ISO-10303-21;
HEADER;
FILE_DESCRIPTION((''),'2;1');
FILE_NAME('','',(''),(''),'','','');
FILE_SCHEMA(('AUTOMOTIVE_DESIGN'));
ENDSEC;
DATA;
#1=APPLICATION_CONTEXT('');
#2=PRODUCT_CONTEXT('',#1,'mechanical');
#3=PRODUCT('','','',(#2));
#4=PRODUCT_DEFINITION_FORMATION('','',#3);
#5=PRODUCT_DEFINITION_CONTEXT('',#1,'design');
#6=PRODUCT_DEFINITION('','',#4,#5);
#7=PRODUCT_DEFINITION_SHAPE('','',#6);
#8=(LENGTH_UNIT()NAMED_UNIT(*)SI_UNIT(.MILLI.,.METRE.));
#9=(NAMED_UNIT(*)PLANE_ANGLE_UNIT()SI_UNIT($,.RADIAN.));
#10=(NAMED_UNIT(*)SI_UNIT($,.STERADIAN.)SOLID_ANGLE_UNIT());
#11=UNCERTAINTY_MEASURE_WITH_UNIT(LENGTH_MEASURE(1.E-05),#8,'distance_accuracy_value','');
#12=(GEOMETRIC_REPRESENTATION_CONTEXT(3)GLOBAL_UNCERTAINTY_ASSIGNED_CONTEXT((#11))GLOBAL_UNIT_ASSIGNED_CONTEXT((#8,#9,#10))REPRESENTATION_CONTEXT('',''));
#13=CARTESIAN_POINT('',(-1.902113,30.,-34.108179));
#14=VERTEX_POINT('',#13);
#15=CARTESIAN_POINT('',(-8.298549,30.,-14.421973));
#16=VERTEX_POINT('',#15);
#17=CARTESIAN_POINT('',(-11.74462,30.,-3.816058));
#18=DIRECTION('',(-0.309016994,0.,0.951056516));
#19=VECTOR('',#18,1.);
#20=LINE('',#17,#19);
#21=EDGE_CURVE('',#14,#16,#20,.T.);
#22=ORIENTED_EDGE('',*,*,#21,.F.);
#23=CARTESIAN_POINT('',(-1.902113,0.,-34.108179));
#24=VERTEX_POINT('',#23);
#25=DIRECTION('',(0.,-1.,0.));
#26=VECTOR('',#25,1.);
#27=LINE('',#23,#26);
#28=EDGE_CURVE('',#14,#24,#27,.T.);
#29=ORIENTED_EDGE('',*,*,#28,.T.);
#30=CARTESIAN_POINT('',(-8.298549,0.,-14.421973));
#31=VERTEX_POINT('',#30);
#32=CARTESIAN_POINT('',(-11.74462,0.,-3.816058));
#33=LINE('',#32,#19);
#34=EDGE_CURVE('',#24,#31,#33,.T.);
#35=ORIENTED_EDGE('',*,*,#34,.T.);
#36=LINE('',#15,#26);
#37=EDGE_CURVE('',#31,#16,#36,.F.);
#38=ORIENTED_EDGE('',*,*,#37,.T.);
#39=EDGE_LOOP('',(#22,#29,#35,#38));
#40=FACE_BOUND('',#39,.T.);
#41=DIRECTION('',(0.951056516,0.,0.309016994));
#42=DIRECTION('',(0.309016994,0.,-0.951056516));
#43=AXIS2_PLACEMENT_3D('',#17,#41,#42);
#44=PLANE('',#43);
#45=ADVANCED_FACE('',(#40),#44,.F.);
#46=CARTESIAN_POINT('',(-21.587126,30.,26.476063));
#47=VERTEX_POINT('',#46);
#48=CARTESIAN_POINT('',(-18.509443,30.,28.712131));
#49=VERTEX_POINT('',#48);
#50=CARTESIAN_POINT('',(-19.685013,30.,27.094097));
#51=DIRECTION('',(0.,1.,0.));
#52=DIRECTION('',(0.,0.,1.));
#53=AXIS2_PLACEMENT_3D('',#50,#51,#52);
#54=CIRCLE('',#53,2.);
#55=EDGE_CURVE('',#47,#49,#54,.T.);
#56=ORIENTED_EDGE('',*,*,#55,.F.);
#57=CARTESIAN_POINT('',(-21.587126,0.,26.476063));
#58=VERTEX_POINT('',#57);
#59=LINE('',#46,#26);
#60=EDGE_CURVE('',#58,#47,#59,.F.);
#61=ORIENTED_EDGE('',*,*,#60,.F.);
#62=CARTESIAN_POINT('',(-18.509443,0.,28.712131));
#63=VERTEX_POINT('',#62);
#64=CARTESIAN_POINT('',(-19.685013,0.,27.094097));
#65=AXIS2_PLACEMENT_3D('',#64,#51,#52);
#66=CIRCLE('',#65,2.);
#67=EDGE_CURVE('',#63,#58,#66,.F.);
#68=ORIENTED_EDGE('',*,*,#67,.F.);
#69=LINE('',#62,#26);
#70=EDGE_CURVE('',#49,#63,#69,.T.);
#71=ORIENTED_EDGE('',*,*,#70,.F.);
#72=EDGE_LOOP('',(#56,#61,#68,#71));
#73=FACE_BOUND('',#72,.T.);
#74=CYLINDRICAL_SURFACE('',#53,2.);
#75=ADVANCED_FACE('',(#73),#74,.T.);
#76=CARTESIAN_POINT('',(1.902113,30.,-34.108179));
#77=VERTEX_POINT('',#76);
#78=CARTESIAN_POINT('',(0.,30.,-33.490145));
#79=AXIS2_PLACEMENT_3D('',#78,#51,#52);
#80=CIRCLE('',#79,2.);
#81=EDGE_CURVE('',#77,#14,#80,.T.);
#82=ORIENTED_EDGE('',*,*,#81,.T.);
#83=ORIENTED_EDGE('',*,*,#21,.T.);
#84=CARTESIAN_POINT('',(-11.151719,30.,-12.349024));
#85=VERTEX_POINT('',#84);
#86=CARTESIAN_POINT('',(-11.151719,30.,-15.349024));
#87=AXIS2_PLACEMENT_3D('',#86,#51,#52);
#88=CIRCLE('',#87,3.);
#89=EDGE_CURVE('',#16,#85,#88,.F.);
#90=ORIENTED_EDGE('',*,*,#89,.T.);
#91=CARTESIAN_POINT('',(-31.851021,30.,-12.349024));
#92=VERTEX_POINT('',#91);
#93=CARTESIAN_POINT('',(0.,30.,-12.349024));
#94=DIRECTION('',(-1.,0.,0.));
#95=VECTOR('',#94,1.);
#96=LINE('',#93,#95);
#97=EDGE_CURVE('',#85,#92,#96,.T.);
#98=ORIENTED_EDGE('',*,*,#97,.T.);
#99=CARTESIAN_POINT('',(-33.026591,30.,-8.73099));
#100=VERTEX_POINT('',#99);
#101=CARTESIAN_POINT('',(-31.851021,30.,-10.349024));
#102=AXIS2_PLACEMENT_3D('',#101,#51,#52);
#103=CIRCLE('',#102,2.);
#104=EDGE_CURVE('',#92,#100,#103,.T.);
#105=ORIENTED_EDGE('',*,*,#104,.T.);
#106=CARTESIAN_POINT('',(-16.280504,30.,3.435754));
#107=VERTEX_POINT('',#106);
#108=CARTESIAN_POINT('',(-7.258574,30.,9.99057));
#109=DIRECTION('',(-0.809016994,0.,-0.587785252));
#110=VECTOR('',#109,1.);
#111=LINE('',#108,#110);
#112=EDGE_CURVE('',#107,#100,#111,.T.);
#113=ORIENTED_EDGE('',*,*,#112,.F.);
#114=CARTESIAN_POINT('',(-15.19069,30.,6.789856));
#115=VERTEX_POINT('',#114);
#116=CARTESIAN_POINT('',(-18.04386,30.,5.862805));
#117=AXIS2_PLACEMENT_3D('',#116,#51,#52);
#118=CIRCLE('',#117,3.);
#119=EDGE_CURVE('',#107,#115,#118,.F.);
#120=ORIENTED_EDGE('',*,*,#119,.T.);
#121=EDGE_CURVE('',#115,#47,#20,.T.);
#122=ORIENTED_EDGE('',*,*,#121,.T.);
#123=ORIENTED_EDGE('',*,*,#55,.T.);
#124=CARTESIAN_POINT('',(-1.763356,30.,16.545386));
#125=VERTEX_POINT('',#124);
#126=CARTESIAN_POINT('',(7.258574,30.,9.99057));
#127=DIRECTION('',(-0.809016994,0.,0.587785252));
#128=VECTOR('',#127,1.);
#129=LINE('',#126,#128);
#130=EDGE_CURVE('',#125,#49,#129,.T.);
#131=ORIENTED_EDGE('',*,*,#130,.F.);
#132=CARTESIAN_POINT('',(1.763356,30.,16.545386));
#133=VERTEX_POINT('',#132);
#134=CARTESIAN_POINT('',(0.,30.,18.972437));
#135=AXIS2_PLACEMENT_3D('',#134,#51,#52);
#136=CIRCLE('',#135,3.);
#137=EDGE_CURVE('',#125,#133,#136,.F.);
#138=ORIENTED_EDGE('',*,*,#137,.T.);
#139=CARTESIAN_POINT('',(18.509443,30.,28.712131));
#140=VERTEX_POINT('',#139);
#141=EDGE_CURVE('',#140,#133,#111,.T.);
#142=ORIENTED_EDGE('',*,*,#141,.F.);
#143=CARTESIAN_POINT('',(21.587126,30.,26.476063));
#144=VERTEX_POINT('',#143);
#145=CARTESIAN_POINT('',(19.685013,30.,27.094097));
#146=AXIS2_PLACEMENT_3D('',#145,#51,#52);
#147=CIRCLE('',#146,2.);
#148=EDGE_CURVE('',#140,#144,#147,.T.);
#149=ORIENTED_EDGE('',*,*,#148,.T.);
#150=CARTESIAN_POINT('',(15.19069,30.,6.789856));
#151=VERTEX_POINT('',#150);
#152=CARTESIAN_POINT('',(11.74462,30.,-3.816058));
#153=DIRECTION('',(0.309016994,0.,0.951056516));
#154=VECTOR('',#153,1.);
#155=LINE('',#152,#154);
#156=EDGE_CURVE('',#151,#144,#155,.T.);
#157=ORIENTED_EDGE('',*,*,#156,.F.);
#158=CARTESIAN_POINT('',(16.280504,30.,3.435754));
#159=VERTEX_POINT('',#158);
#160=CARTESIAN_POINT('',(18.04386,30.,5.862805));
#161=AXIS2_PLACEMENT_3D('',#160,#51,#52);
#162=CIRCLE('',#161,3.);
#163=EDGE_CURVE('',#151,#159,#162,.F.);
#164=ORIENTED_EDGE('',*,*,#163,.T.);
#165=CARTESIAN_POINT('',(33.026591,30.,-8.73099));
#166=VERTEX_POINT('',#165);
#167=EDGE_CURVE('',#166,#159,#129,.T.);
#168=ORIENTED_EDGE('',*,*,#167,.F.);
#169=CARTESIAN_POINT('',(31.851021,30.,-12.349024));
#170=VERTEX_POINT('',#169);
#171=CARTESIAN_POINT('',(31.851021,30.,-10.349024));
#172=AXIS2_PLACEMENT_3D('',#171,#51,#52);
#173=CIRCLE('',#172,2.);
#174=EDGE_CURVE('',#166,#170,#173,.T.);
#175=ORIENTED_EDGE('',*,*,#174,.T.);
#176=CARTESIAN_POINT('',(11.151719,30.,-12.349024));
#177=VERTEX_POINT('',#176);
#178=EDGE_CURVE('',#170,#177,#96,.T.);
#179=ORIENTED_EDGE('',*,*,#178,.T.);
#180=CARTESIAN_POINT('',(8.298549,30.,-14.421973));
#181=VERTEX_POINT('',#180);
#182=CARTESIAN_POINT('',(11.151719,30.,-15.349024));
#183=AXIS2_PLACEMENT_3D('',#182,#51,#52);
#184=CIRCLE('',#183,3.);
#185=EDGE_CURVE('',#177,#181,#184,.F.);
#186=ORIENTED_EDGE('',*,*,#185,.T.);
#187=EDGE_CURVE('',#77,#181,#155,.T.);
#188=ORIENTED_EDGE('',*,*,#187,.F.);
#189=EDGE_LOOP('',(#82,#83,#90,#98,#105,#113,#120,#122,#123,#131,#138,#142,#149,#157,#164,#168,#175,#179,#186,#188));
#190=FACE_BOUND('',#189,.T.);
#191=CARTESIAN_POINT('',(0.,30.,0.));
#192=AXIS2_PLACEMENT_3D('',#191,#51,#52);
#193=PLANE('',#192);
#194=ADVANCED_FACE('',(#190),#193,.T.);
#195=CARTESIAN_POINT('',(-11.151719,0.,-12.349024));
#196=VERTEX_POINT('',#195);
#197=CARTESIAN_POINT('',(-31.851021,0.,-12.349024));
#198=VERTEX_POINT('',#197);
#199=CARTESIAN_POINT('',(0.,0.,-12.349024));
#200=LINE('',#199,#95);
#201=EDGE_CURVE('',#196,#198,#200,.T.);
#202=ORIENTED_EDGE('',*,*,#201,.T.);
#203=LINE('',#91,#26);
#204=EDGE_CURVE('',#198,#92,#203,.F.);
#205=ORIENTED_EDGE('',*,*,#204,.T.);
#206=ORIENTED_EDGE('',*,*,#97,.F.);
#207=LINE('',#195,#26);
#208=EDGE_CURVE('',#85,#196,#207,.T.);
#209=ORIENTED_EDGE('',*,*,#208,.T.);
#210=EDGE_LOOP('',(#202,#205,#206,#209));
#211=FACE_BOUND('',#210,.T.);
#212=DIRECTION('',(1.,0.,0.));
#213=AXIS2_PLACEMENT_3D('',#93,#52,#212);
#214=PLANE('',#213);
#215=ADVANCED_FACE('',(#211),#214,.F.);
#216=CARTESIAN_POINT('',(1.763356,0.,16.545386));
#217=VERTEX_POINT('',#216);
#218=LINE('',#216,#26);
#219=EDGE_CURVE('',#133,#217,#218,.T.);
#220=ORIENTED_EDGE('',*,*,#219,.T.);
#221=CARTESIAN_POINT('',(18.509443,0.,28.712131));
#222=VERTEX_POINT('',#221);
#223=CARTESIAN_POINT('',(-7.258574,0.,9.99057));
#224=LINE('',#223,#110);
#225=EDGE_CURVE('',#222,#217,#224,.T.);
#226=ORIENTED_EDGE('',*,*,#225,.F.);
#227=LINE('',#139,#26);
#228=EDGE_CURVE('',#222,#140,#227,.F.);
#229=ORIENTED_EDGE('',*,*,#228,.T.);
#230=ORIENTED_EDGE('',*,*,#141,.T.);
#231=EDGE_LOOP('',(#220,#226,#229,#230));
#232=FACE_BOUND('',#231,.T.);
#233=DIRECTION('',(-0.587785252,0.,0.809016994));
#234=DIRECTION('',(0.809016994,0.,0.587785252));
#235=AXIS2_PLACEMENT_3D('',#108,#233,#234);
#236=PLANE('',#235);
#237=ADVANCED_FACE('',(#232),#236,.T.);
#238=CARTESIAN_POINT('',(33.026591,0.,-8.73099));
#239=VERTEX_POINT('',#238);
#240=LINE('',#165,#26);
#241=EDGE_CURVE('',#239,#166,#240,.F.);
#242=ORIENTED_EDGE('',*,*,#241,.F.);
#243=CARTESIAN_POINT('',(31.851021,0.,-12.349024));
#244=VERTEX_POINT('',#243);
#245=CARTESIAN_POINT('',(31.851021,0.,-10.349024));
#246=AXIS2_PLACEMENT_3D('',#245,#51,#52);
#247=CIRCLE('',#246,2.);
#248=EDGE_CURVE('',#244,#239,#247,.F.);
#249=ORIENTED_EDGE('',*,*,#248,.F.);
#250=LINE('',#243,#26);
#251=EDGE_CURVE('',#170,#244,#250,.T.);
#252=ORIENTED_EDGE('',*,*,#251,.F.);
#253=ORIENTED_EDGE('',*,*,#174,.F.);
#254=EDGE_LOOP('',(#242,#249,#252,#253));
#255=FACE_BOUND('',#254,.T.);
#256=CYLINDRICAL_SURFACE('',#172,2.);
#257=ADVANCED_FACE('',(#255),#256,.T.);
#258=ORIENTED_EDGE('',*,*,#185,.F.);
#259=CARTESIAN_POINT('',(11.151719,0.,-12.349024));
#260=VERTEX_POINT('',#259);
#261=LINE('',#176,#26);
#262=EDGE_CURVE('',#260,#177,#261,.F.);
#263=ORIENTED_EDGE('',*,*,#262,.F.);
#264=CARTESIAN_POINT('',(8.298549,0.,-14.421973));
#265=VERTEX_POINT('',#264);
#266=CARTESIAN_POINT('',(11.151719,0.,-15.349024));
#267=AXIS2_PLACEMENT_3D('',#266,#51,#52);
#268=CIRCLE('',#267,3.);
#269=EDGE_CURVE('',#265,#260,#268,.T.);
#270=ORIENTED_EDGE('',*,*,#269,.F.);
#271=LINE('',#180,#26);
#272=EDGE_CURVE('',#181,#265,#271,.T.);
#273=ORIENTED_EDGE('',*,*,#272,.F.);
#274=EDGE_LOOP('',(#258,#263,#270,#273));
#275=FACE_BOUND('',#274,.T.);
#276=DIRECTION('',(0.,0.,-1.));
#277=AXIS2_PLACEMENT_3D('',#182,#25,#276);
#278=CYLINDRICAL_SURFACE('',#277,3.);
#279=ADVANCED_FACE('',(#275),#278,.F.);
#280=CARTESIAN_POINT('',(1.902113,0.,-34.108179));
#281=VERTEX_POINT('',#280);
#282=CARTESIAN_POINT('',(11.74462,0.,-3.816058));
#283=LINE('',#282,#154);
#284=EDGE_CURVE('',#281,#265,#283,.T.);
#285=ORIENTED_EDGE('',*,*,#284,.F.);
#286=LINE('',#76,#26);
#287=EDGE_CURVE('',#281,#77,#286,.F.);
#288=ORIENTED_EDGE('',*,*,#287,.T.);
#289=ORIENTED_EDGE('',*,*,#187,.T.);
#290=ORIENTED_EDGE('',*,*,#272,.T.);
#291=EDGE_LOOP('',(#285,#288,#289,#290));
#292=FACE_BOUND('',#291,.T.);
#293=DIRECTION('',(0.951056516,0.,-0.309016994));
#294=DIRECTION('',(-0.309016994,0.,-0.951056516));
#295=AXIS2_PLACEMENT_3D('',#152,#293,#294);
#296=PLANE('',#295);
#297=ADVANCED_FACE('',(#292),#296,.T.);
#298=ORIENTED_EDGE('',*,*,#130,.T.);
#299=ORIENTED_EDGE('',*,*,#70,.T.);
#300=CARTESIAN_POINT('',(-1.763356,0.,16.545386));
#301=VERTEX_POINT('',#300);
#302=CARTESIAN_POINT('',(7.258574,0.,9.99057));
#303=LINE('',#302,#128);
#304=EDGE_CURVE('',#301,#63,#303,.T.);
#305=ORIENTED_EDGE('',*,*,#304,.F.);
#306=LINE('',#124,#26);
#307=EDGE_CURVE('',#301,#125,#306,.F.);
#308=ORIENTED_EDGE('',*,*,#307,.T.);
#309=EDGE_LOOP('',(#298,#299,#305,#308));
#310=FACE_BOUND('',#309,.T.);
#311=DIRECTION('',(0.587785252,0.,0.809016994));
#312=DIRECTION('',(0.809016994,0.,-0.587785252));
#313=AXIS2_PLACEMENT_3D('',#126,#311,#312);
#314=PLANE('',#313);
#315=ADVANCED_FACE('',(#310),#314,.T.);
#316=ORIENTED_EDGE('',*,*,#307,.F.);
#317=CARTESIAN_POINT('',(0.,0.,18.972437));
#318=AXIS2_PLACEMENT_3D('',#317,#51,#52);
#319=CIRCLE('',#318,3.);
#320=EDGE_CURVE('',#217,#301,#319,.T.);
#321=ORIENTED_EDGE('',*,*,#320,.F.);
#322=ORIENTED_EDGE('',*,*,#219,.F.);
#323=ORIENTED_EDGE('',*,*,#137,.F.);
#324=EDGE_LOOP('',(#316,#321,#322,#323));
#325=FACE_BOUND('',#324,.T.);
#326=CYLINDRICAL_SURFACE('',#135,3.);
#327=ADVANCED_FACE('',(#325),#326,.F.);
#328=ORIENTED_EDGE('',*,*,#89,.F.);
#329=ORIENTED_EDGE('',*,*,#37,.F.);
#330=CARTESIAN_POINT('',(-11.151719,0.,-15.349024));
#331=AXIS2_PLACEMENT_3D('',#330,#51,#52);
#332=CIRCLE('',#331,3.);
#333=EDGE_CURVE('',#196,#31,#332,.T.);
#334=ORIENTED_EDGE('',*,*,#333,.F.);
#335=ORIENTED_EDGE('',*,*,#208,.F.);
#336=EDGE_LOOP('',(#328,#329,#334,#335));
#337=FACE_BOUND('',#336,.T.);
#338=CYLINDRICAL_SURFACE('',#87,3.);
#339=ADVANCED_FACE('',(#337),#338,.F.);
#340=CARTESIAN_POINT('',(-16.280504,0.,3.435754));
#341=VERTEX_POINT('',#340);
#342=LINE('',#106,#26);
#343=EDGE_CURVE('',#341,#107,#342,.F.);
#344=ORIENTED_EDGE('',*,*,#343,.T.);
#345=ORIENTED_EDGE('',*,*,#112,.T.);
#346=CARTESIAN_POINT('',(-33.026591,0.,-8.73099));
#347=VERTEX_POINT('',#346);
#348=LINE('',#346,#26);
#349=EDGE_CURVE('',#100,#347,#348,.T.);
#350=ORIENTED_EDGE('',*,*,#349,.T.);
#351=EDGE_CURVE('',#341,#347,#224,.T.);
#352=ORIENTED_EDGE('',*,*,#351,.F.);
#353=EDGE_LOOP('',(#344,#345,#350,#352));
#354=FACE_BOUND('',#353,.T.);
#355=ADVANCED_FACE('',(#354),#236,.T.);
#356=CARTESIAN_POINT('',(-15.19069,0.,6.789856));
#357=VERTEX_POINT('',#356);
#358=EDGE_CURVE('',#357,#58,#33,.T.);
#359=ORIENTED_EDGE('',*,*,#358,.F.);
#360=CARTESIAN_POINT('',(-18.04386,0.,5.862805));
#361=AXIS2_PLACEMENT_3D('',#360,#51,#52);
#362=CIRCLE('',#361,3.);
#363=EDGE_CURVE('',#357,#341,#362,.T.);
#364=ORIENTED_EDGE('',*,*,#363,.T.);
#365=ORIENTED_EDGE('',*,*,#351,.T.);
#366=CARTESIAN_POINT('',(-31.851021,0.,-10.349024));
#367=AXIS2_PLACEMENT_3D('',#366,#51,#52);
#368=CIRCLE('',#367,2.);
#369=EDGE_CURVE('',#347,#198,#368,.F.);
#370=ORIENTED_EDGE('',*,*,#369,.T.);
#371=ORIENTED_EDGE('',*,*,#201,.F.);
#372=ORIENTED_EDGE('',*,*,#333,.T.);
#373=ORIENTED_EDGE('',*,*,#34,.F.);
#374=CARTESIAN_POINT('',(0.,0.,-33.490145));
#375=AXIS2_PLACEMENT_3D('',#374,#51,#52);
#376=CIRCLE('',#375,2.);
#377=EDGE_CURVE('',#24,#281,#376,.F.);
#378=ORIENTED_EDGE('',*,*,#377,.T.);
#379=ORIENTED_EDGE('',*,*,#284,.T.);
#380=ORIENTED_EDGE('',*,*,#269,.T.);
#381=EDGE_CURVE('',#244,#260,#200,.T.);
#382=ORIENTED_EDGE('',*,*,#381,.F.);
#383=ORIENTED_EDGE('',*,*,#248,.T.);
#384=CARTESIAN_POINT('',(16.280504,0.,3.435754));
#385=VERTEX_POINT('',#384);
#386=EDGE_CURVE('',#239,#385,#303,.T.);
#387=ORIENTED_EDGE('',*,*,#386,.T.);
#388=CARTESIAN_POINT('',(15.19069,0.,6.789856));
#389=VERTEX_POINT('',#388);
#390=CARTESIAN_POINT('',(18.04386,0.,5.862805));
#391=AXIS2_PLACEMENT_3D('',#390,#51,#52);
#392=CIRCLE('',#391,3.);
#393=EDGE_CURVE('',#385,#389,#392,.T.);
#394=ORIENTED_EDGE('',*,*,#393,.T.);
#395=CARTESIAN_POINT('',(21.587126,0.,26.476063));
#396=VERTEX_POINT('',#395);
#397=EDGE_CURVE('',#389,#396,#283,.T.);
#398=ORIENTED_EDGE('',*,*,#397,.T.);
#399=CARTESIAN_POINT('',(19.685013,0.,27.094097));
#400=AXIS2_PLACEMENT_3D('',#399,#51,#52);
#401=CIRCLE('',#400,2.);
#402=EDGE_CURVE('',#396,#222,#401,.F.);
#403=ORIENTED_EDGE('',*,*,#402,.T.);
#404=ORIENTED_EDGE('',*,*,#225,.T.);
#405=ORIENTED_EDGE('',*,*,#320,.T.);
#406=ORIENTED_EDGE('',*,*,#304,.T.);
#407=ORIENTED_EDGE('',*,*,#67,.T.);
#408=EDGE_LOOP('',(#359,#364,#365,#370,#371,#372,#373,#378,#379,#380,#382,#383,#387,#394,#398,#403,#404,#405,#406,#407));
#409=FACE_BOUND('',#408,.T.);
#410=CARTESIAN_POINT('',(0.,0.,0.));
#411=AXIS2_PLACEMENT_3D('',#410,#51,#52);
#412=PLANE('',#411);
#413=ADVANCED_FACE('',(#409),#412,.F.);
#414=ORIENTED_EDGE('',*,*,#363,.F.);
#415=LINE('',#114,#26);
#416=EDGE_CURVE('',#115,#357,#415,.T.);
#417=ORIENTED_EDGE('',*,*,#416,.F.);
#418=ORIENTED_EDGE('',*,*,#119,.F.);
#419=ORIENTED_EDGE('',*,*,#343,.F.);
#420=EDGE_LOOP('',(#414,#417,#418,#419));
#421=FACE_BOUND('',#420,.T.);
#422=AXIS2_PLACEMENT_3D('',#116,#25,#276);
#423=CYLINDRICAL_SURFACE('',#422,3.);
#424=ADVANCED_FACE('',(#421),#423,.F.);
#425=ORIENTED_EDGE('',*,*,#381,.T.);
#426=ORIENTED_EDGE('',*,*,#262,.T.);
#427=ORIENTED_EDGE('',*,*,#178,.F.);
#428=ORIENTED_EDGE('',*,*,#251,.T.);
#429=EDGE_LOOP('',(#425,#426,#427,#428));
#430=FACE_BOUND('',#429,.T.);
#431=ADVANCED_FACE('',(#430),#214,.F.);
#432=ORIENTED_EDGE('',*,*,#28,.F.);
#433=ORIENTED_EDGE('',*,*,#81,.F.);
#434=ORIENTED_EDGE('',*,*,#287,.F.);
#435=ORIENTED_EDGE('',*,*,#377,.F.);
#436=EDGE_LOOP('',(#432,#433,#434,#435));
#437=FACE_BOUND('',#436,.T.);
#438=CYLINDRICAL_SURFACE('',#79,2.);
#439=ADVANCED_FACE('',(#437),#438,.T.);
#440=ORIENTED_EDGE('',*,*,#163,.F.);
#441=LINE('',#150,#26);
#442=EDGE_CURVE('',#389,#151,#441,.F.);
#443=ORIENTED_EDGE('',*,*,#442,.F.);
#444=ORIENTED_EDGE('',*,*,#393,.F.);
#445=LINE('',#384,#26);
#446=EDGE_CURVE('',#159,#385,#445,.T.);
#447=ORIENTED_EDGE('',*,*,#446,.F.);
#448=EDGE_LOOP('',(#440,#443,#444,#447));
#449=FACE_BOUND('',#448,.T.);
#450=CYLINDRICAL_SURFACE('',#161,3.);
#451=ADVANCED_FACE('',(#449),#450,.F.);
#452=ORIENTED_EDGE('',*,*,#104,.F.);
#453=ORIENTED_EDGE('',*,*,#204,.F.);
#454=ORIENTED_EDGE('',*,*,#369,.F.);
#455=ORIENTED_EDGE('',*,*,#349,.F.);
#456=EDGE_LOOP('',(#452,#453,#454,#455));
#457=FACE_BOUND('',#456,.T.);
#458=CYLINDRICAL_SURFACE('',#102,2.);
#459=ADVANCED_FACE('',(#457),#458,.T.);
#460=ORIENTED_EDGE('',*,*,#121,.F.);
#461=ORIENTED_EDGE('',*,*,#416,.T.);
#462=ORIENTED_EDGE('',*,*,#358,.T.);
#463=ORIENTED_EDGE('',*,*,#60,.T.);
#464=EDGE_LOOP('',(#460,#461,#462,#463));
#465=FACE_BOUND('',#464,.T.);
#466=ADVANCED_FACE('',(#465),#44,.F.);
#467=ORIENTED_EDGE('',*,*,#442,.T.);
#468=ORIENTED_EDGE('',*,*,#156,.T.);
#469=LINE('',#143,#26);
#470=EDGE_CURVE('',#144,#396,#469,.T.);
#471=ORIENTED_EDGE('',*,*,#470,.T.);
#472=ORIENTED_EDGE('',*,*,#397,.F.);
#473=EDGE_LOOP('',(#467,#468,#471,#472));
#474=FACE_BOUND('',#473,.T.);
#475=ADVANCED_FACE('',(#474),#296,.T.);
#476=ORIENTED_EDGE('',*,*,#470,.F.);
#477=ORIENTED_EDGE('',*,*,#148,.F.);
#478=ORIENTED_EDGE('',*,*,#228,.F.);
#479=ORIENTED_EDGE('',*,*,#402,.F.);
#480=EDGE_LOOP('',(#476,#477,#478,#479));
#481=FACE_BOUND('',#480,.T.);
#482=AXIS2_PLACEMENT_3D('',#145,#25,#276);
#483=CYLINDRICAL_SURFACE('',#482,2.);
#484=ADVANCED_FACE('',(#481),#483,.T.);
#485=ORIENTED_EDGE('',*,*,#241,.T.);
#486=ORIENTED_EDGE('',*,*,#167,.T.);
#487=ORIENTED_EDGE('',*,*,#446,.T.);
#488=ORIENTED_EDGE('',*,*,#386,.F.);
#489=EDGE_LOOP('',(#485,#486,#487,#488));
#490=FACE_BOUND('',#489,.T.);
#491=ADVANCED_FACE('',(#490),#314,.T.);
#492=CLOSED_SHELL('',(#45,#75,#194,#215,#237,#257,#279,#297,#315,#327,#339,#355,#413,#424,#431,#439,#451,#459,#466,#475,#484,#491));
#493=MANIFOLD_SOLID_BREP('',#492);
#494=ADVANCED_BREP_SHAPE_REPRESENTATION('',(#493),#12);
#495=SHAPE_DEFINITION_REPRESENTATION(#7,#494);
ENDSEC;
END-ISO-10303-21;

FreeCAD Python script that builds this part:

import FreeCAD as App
import Part
import Sketcher

V = App.Vector
Q = App.Units.Quantity


def edges_at(feature, points):
    """Names of the edges that pass closest to the given points."""
    edges = feature.Shape.Edges
    near = lambda p: min(range(len(edges)), key=lambda i: edges[i].distToShape(Part.Vertex(*p))[0])
    return sorted({f"Edge{near(p) + 1}" for p in points})


def add_polygon(sketch, points):
    """Adds a closed chain of lines whose ends are joined by coincident constraints."""
    first, n = sketch.GeometryCount, len(points)
    for a, b in zip(points, points[1:] + points[:1]):
        sketch.addGeometry(Part.LineSegment(App.Vector(*a, 0), App.Vector(*b, 0)), False)
    for i in range(n):
        sketch.addConstraint(Sketcher.Constraint("Coincident", first + i, 2, first + (i + 1) % n, 1))

doc = App.newDocument("Part")
params = doc.addObject("Spreadsheet::Sheet", "Params")
for row, (alias, value) in enumerate([
    ("pad1_length", "30 mm"),
    ("fillet_radius", "2 mm"),
    ("fillet2_radius", "3 mm"),
], start=1):
    params.set(f"A{row}", alias)
    params.set(f"B{row}", "=" + value)
    params.setAlias(f"B{row}", alias)

body = doc.addObject("PartDesign::Body", "Body")

# Sketch on XZ plane
sketch1 = doc.addObject("Sketcher::SketchObject", "Sketch")
body.addObject(sketch1)
sketch1.AttachmentSupport = (doc.XZ_Plane, [""])
sketch1.MapMode = "FlatFace"
add_polygon(sketch1, [(0, -39.962281), (-8.972091, -12.349024), (-38.006388, -12.349024), (-14.517148, 4.716907), (-23.489239, 32.330165), (0, 15.264233), (23.489239, 32.330165), (14.517148, 4.716907), (38.006388, -12.349024), (8.972091, -12.349024)])  # lines 0-9
sketch1.addConstraint([
    Sketcher.Constraint("Horizontal", 1),
    Sketcher.Constraint("Horizontal", 8),
    Sketcher.Constraint("Symmetric", 3, 2, 5, 2, -2),
    Sketcher.Constraint("Symmetric", 2, 2, 6, 2, -2),
    Sketcher.Constraint("Symmetric", 1, 2, 7, 2, -2),
    Sketcher.Constraint("PointOnObject", 4, 2, -2),
    Sketcher.Constraint("PointOnObject", 9, 2, -2),
    Sketcher.Constraint("Parallel", 0, 3),
    Sketcher.Constraint("Parallel", 2, 5),
    Sketcher.Constraint("Parallel", 6, 9),
    Sketcher.Constraint("Equal", 0, 2),
    Sketcher.Constraint("Equal", 2, 3),
    Sketcher.Constraint("Equal", 3, 4),
    Sketcher.Constraint("Angle", 0, Q("108 deg")),
    Sketcher.Constraint("Angle", 2, Q("36 deg")),
    Sketcher.Constraint("DistanceX", 1, 2, 1, 1, 29.034297),
    Sketcher.Constraint("DistanceY", 9, 2, -1, 1, 39.962281),
])
pad1 = doc.addObject("PartDesign::Pad", "Pad")
body.addObject(pad1)
pad1.Profile = sketch1
pad1.setExpression("Length", "Params.pad1_length")
pad1.Reversed = True
doc.recompute()

fillet = doc.addObject("PartDesign::Fillet", "Fillet")
body.addObject(fillet)
fillet.Base = (pad1, edges_at(pad1, [
    (23.489, 15, 32.33),
    (-23.489, 15, 32.33),
    (-38.006, 15, -12.349),
    (0, 15, -39.962),
    (38.006, 15, -12.349),
]))
fillet.setExpression("Radius", "Params.fillet_radius")
doc.recompute()

fillet2 = doc.addObject("PartDesign::Fillet", "Fillet001")
body.addObject(fillet2)
fillet2.Base = (fillet, edges_at(fillet, [
    (14.517, 15, 4.717),
    (0, 15, 15.264),
    (-14.517, 15, 4.717),
    (-8.972, 15, -12.349),
    (8.972, 15, -12.349),
]))
fillet2.setExpression("Radius", "Params.fillet2_radius")

doc.recompute()
